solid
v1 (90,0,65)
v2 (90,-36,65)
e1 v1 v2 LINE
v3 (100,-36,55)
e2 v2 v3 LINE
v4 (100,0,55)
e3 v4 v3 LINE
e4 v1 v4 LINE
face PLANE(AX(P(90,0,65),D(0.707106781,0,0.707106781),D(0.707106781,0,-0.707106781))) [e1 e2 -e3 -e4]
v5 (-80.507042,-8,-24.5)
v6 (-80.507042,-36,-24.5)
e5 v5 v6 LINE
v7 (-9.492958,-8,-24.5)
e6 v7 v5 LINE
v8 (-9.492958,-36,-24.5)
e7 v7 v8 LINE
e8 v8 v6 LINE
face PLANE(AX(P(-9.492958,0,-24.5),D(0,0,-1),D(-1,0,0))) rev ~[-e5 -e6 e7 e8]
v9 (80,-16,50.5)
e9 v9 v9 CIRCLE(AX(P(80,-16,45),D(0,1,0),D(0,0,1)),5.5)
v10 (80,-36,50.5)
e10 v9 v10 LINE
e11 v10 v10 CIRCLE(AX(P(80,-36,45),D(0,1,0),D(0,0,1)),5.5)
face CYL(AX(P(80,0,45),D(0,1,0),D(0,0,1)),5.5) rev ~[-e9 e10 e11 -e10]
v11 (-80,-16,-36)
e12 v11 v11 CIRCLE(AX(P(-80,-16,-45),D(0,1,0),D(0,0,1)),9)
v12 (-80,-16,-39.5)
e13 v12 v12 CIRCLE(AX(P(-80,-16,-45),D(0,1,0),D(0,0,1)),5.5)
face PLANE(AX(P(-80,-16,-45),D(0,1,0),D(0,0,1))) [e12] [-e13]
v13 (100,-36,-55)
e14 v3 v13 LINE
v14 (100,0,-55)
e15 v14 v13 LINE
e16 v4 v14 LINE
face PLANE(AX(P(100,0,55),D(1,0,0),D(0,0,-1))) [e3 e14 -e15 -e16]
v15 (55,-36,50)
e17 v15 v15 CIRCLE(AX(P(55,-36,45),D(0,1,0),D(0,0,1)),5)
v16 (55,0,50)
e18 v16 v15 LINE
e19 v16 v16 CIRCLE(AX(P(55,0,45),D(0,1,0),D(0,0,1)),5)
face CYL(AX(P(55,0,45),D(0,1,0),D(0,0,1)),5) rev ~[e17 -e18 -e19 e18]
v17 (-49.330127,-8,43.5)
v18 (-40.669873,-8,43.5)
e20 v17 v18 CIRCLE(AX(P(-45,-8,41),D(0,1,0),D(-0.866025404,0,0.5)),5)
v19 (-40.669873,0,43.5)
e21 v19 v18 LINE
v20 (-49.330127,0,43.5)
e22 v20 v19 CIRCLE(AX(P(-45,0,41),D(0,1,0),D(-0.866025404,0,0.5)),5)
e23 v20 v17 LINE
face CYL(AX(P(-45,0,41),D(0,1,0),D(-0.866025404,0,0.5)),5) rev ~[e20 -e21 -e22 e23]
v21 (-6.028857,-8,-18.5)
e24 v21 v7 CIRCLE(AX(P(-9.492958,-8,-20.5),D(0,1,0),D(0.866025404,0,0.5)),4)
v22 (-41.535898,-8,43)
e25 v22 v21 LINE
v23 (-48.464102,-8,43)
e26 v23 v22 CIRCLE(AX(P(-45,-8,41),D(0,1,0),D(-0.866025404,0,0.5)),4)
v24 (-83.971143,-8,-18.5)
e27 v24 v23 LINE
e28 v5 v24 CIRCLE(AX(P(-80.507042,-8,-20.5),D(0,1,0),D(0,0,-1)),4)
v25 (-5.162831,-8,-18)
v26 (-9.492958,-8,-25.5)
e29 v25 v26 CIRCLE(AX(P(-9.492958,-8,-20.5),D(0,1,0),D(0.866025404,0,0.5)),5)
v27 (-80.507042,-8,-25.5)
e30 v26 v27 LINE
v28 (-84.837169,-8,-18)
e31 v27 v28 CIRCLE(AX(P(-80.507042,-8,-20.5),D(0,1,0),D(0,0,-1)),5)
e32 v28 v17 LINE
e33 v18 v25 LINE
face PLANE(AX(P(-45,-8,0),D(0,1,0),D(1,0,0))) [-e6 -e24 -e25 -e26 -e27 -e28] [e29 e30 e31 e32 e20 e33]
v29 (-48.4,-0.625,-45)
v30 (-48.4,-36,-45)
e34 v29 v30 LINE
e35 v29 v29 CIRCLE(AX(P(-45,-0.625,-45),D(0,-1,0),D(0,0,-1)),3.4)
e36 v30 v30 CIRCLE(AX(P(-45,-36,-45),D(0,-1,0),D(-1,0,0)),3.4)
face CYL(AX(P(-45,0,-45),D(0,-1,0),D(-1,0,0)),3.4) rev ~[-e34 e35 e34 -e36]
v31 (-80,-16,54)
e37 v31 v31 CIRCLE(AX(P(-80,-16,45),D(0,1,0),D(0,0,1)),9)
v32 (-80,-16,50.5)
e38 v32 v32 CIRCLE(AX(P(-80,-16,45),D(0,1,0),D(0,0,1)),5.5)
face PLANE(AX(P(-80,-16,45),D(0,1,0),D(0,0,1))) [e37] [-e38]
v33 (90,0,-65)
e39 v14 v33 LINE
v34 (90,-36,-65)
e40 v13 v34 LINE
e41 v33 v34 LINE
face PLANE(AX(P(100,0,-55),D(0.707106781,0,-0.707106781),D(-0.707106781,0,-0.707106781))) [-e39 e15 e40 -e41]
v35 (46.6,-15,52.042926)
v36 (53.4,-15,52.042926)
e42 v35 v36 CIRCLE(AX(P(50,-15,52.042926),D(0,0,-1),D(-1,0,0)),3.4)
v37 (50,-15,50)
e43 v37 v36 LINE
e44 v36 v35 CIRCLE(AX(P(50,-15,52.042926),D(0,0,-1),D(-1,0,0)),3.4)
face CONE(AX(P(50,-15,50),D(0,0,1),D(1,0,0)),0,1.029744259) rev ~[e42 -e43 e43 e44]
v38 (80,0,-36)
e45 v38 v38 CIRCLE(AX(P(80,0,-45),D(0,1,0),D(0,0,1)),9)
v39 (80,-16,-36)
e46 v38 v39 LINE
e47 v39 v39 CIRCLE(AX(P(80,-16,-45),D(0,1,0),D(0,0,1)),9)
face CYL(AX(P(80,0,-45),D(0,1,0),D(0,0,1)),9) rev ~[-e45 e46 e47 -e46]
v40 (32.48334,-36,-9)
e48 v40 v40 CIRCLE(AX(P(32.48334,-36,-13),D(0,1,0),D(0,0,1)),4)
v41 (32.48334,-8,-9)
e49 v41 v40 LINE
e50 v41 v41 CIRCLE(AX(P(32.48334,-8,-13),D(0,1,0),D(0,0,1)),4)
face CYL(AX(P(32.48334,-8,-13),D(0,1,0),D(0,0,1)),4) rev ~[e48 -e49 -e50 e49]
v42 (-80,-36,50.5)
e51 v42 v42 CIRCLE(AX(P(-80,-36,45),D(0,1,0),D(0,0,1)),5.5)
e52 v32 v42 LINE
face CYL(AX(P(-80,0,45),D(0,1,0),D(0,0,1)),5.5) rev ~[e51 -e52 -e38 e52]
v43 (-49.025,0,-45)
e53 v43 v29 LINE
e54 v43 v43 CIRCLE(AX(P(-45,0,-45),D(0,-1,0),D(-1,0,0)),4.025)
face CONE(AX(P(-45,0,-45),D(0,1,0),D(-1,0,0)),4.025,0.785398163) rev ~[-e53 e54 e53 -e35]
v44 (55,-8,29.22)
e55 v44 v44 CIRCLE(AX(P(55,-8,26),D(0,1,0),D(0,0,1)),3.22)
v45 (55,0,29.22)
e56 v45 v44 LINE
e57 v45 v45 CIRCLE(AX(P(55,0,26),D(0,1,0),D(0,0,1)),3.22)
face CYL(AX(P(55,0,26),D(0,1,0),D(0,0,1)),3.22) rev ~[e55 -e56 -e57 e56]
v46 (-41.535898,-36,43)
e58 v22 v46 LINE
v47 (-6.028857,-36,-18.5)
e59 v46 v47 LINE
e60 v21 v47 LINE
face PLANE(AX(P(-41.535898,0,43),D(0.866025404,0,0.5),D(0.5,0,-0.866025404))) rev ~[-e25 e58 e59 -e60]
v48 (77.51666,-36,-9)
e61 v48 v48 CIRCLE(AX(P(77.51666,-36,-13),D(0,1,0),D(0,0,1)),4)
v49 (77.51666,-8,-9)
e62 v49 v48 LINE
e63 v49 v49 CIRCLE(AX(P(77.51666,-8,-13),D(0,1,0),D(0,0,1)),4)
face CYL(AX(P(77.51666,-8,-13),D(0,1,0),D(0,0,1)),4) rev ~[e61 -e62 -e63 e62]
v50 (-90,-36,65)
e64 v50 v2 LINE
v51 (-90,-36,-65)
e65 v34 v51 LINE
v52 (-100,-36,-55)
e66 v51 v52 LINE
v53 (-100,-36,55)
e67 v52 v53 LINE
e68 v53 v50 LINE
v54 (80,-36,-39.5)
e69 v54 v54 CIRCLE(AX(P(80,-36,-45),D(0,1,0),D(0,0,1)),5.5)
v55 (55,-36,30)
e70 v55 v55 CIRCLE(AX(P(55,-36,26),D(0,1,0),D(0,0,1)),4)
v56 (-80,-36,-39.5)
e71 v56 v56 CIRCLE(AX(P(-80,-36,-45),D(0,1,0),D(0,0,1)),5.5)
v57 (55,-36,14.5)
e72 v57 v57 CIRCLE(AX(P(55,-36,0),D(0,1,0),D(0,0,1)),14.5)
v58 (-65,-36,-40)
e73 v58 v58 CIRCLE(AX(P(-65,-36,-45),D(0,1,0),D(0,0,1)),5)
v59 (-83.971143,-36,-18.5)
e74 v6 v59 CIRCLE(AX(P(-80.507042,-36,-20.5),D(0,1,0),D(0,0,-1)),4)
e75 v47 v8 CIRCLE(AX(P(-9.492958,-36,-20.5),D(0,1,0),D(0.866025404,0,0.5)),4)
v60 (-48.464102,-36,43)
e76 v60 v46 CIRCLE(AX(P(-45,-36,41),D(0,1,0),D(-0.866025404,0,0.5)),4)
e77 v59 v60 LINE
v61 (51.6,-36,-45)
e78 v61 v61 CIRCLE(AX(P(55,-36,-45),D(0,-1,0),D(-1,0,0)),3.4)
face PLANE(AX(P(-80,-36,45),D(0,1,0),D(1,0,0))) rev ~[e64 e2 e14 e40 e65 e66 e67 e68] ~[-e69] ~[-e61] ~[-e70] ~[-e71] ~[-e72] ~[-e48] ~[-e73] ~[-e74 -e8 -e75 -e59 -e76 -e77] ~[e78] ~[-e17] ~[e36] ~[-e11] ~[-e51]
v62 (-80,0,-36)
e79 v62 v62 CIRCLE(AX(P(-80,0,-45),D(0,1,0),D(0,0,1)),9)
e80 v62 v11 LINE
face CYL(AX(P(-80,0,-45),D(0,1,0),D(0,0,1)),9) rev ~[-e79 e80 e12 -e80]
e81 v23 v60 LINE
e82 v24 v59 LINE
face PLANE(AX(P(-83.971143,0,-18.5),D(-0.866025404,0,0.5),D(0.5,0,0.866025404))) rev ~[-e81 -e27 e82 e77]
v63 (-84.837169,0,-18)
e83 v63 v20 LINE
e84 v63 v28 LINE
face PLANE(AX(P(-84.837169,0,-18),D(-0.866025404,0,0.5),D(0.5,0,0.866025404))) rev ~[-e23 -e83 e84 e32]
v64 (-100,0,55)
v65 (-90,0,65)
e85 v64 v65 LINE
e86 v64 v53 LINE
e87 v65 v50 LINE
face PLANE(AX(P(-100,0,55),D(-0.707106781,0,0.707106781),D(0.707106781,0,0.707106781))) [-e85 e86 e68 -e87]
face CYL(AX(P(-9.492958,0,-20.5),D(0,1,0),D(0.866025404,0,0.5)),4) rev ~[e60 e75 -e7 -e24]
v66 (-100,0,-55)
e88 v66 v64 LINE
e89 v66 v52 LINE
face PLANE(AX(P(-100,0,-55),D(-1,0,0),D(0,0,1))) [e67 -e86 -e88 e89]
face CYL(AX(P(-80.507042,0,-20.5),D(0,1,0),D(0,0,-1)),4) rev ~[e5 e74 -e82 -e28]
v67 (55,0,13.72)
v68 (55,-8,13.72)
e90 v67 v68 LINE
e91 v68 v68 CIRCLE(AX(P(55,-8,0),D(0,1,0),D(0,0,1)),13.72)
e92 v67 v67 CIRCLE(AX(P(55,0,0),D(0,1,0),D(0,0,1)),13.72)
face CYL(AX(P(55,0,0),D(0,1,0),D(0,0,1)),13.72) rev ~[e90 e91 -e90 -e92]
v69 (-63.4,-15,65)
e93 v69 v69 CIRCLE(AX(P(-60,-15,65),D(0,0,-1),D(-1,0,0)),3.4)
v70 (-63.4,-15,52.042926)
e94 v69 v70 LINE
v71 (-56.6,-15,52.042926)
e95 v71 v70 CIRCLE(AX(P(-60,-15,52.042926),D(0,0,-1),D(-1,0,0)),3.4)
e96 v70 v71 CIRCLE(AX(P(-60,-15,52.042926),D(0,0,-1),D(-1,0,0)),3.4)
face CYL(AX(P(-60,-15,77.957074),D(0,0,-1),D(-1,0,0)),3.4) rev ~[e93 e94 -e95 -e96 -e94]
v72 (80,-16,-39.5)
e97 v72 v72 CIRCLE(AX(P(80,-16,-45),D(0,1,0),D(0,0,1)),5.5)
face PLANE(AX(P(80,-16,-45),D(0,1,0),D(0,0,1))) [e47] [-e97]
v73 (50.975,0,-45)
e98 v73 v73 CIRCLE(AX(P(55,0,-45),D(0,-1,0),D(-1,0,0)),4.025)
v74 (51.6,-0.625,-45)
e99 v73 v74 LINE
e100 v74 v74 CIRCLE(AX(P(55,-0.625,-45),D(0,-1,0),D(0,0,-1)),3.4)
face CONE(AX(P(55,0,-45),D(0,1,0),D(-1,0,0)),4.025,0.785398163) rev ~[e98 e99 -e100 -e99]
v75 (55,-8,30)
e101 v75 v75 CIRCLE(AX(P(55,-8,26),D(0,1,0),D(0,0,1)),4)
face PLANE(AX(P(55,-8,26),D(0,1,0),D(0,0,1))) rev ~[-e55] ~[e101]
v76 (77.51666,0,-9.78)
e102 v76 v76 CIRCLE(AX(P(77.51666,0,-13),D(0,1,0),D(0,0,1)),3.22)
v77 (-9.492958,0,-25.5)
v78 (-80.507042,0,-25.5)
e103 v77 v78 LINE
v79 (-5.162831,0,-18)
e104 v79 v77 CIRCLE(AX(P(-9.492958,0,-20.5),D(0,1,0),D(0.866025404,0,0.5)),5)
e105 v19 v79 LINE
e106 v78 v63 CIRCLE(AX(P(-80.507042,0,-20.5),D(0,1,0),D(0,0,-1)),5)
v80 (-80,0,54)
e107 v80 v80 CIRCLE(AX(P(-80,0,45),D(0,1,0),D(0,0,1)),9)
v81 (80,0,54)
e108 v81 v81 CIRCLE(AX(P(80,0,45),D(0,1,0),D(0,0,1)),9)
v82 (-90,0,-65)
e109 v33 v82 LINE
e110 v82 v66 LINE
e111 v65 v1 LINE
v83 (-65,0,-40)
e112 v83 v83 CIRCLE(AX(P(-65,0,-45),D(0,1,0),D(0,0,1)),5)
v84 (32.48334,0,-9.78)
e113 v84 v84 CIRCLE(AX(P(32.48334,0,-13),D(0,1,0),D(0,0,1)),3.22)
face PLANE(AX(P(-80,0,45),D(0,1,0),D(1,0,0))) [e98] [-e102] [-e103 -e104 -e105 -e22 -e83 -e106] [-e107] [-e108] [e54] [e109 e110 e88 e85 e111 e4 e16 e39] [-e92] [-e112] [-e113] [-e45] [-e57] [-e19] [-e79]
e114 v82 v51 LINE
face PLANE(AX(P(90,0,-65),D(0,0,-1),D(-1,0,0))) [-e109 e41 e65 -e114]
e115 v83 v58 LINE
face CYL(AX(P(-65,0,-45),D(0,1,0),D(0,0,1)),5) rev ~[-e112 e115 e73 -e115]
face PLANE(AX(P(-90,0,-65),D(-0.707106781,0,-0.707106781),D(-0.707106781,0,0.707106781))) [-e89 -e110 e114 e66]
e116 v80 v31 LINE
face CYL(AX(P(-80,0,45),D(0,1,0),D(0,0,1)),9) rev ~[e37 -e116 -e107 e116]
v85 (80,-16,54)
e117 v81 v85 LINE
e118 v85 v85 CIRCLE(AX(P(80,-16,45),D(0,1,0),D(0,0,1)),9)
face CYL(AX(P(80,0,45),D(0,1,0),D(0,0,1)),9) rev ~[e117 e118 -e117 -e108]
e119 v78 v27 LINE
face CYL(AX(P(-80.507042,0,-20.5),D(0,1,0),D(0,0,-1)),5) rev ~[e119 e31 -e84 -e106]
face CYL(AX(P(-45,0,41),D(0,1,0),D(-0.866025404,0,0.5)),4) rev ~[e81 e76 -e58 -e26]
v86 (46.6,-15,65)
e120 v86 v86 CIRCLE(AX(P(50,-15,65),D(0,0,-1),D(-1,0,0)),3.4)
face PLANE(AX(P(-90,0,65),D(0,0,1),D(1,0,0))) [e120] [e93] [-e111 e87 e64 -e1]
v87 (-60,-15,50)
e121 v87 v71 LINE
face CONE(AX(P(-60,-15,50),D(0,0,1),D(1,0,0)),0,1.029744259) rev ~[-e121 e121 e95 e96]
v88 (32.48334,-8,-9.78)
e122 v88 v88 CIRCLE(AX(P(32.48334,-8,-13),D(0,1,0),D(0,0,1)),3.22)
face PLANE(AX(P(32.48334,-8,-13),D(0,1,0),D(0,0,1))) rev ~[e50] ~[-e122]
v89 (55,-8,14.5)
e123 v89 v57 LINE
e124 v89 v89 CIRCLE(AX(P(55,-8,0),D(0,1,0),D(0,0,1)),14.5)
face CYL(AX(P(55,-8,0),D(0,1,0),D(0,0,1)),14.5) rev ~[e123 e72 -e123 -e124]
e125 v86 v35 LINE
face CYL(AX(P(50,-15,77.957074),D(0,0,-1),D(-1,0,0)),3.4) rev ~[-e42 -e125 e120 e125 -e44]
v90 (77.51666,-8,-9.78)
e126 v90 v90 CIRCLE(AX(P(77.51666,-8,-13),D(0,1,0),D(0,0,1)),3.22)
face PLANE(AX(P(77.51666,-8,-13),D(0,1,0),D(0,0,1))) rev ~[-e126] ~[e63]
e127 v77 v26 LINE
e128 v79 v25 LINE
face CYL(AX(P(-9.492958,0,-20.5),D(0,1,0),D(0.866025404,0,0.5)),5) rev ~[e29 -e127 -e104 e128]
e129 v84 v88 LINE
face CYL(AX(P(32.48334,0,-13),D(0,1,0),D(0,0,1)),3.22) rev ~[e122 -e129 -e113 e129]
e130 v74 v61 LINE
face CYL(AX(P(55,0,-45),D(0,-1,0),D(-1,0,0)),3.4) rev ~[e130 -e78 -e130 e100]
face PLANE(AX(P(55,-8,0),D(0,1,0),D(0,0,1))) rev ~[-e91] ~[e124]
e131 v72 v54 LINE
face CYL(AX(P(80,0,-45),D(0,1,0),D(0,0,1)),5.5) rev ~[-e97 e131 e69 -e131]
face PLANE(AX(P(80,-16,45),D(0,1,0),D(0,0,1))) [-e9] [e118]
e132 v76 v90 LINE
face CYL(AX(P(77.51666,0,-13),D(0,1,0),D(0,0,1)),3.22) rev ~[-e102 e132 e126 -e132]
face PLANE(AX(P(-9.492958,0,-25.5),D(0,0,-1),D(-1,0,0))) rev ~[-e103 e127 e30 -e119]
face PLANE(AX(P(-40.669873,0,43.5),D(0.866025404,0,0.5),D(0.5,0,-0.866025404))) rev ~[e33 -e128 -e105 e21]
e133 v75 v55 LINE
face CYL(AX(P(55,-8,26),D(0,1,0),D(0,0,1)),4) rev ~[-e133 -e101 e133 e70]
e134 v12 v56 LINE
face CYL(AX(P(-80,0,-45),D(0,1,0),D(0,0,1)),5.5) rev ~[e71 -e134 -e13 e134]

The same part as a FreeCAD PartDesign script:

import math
import FreeCAD as App
import Part
import Sketcher
from FreeCAD import Vector
Q = App.Units.Quantity

doc = App.newDocument("Part")
body = doc.addObject("PartDesign::Body", "Body")

sketch1 = body.newObject("Sketcher::SketchObject", "Sketch")
sketch1.AttachmentSupport = (doc.getObject("XZ_Plane"), [""])
sketch1.MapMode = "FlatFace"
sketch1.addGeometry(Part.LineSegment(Vector(100, 55, 0), Vector(100, -55, 0)), False)
sketch1.addGeometry(Part.LineSegment(Vector(100, -55, 0), Vector(90, -65, 0)), False)
sketch1.addGeometry(Part.LineSegment(Vector(90, -65, 0), Vector(-90, -65, 0)), False)
sketch1.addGeometry(Part.LineSegment(Vector(-90, -65, 0), Vector(-100, -55, 0)), False)
sketch1.addGeometry(Part.LineSegment(Vector(-100, -55, 0), Vector(-100, 55, 0)), False)
sketch1.addGeometry(Part.LineSegment(Vector(-100, 55, 0), Vector(-90, 65, 0)), False)
sketch1.addGeometry(Part.LineSegment(Vector(-90, 65, 0), Vector(90, 65, 0)), False)
sketch1.addGeometry(Part.LineSegment(Vector(90, 65, 0), Vector(100, 55, 0)), False)
sketch1.addGeometry(Part.Circle(Vector(55, 45, 0), Vector(0, 0, 1), 5), False)
sketch1.addGeometry(Part.Circle(Vector(-65, -45, 0), Vector(0, 0, 1), 5), False)
sketch1.addGeometry(Part.Circle(Vector(-80, 45, 0), Vector(0, 0, 1), 5.5), False)
sketch1.addGeometry(Part.ArcOfCircle(Part.Circle(Vector(-9.5, -20.5, 0), Vector(0, 0, 1), 4), math.radians(-90), math.radians(30)), False)
sketch1.addGeometry(Part.LineSegment(Vector(-6, -18.5, 0), Vector(-41.5, 43, 0)), False)
sketch1.addGeometry(Part.ArcOfCircle(Part.Circle(Vector(-45, 41, 0), Vector(0, 0, 1), 4), math.radians(30), math.radians(150)), False)
sketch1.addGeometry(Part.LineSegment(Vector(-48.5, 43, 0), Vector(-84, -18.5, 0)), False)
sketch1.addGeometry(Part.ArcOfCircle(Part.Circle(Vector(-80.5, -20.5, 0), Vector(0, 0, 1), 4), math.radians(150), math.radians(270)), False)
sketch1.addGeometry(Part.LineSegment(Vector(-80.5, -24.5, 0), Vector(-9.5, -24.5, 0)), False)
sketch1.addGeometry(Part.Circle(Vector(80, 45, 0), Vector(0, 0, 1), 5.5), False)
sketch1.addGeometry(Part.Circle(Vector(55, 26, 0), Vector(0, 0, 1), 3.2), False)
sketch1.addGeometry(Part.Circle(Vector(-80, -45, 0), Vector(0, 0, 1), 5.5), False)
sketch1.addGeometry(Part.Circle(Vector(32.5, -13, 0), Vector(0, 0, 1), 3.2), False)
sketch1.addGeometry(Part.Circle(Vector(55, 0, 0), Vector(0, 0, 1), 13.7), False)
sketch1.addGeometry(Part.Circle(Vector(77.5, -13, 0), Vector(0, 0, 1), 3.2), False)
sketch1.addGeometry(Part.Circle(Vector(80, -45, 0), Vector(0, 0, 1), 5.5), False)
sketch1.addConstraint(Sketcher.Constraint("Coincident", 0, 2, 1, 1))
sketch1.addConstraint(Sketcher.Constraint("Coincident", 1, 2, 2, 1))
sketch1.addConstraint(Sketcher.Constraint("Coincident", 2, 2, 3, 1))
sketch1.addConstraint(Sketcher.Constraint("Coincident", 3, 2, 4, 1))
sketch1.addConstraint(Sketcher.Constraint("Coincident", 4, 2, 5, 1))
sketch1.addConstraint(Sketcher.Constraint("Coincident", 5, 2, 6, 1))
sketch1.addConstraint(Sketcher.Constraint("Coincident", 6, 2, 7, 1))
sketch1.addConstraint(Sketcher.Constraint("Coincident", 7, 2, 0, 1))
sketch1.addConstraint(Sketcher.Constraint("Tangent", 11, 2, 12, 1))
sketch1.addConstraint(Sketcher.Constraint("Tangent", 12, 2, 13, 1))
sketch1.addConstraint(Sketcher.Constraint("Tangent", 13, 2, 14, 1))
sketch1.addConstraint(Sketcher.Constraint("Tangent", 14, 2, 15, 1))
sketch1.addConstraint(Sketcher.Constraint("Tangent", 15, 2, 16, 1))
sketch1.addConstraint(Sketcher.Constraint("Tangent", 16, 2, 11, 1))
sketch1.addConstraint(Sketcher.Constraint("Vertical", 0))
sketch1.addConstraint(Sketcher.Constraint("Horizontal", 2))
sketch1.addConstraint(Sketcher.Constraint("Vertical", 4))
sketch1.addConstraint(Sketcher.Constraint("Horizontal", 6))
sketch1.addConstraint(Sketcher.Constraint("Horizontal", 16))
sketch1.addConstraint(Sketcher.Constraint("Equal", 8, 9))
sketch1.addConstraint(Sketcher.Constraint("Equal", 11, 13))
sketch1.addConstraint(Sketcher.Constraint("Equal", 13, 15))
sketch1.addConstraint(Sketcher.Constraint("Equal", 10, 17))
sketch1.addConstraint(Sketcher.Constraint("Equal", 17, 19))
sketch1.addConstraint(Sketcher.Constraint("Equal", 18, 20))
sketch1.addConstraint(Sketcher.Constraint("Equal", 20, 22))
sketch1.addConstraint(Sketcher.Constraint("Equal", 19, 23))
sketch1.addConstraint(Sketcher.Constraint("Symmetric", 17, 3, 19, 3, -1, 1))
sketch1.addConstraint(Sketcher.Constraint("Symmetric", 10, 3, 23, 3, -1, 1))
sketch1.addConstraint(Sketcher.Constraint("Symmetric", 0, 2, 4, 2, -1, 1))
sketch1.addConstraint(Sketcher.Constraint("Symmetric", 1, 2, 5, 2, -1, 1))
sketch1.addConstraint(Sketcher.Constraint("Symmetric", 10, 3, 17, 3, -2))
sketch1.addConstraint(Sketcher.Constraint("PointOnObject", 21, 3, -1))
sketch1.addConstraint(Sketcher.Constraint("Perpendicular", 1, 3))
sketch1.addConstraint(Sketcher.Constraint("Perpendicular", 5, 7))
sketch1.addConstraint(Sketcher.Constraint("Horizontal", 8, 3, 10, 3))
sketch1.addConstraint(Sketcher.Constraint("Horizontal", 9, 3, 19, 3))
sketch1.addConstraint(Sketcher.Constraint("Horizontal", 20, 3, 22, 3))
sketch1.addConstraint(Sketcher.Constraint("Horizontal", 0, 2, 3, 2))
sketch1.addConstraint(Sketcher.Constraint("Horizontal", 4, 2, 7, 2))
sketch1.addConstraint(Sketcher.Constraint("Horizontal", 12, 2, 13, 2))
sketch1.addConstraint(Sketcher.Constraint("Vertical", 8, 3, 18, 3))
sketch1.addConstraint(Sketcher.Constraint("Vertical", 18, 3, 21, 3))
sketch1.addConstraint(Sketcher.Constraint("Vertical", 2, 2, 5, 2))
sketch1.addConstraint(Sketcher.Constraint("Diameter", 8, Q("10 mm")))
sketch1.addConstraint(Sketcher.Constraint("Diameter", 10, Q("11 mm")))
sketch1.addConstraint(Sketcher.Constraint("Radius", 11, Q("4 mm")))
sketch1.addConstraint(Sketcher.Constraint("Diameter", 18, Q("6.44 mm")))
sketch1.addConstraint(Sketcher.Constraint("Diameter", 21, Q("27.44 mm")))
sketch1.addConstraint(Sketcher.Constraint("DistanceX", 2, 2, 2, 1, Q("180 mm")))
sketch1.addConstraint(Sketcher.Constraint("DistanceY", 0, 2, 0, 1, Q("110 mm")))
sketch1.addConstraint(Sketcher.Constraint("Angle", 12, Q("120 deg")))
sketch1.addConstraint(Sketcher.Constraint("DistanceX", -1, 1, 8, 3, Q("55 mm")))
sketch1.addConstraint(Sketcher.Constraint("DistanceY", -1, 1, 8, 3, Q("45 mm")))
sketch1.addConstraint(Sketcher.Constraint("DistanceX", 9, 3, -1, 1, Q("65 mm")))
sketch1.addConstraint(Sketcher.Constraint("DistanceX", 10, 3, -1, 1, Q("80 mm")))
sketch1.addConstraint(Sketcher.Constraint("DistanceX", 13, 3, -1, 1, Q("45 mm")))
sketch1.addConstraint(Sketcher.Constraint("DistanceY", -1, 1, 13, 3, Q("41 mm")))
sketch1.addConstraint(Sketcher.Constraint("DistanceY", -1, 1, 18, 3, Q("26 mm")))
sketch1.addConstraint(Sketcher.Constraint("DistanceY", 20, 3, -1, 1, Q("13 mm")))
sketch1.addConstraint(Sketcher.Constraint("DistanceX", -1, 1, 0, 2, Q("100 mm")))
sketch1.addConstraint(Sketcher.Constraint("DistanceY", 11, 3, -1, 1, Q("20.5 mm")))
sketch1.addConstraint(Sketcher.Constraint("DistanceX", -1, 1, 20, 3, Q("32.48334 mm")))
sketch1.addConstraint(Sketcher.Constraint("DistanceX", -1, 1, 22, 3, Q("77.51666 mm")))
pad1 = body.newObject("PartDesign::Pad", "Pad")
pad1.Profile = sketch1
pad1.Length = 36

sketch2 = body.newObject("Sketcher::SketchObject", "Sketch001")
sketch2.AttachmentSupport = (doc.getObject("XZ_Plane"), [""])
sketch2.MapMode = "FlatFace"
sketch2.addGeometry(Part.Circle(Vector(-45, -45, 0), Vector(0, 0, 1), 3.4), False)
sketch2.addGeometry(Part.Circle(Vector(55, -45, 0), Vector(0, 0, 1), 3.4), False)
sketch2.addConstraint(Sketcher.Constraint("Equal", 0, 1))
sketch2.addConstraint(Sketcher.Constraint("Horizontal", 0, 3, 1, 3))
sketch2.addConstraint(Sketcher.Constraint("Diameter", 0, Q("6.8 mm")))
sketch2.addConstraint(Sketcher.Constraint("DistanceX", 0, 3, -1, 1, Q("45 mm")))
sketch2.addConstraint(Sketcher.Constraint("DistanceY", 0, 3, -1, 1, Q("45 mm")))
sketch2.addConstraint(Sketcher.Constraint("DistanceX", -1, 1, 1, 3, Q("55 mm")))
doc.recompute()
hole = body.newObject("PartDesign::Hole", "Hole")
hole.Profile = sketch2
hole.ThreadType = "None"
hole.Diameter = 6.8
hole.DepthType = "ThroughAll"
hole.HoleCutType = "Countersink"
hole.HoleCutDiameter = 8.05
hole.HoleCutCountersinkAngle = 90
hole.Reversed = True

sketch3 = body.newObject("Sketcher::SketchObject", "Sketch002")
sketch3.AttachmentSupport = (doc.getObject("XZ_Plane"), [""])
sketch3.MapMode = "FlatFace"
sketch3.addGeometry(Part.LineSegment(Vector(-9.5, -25.5, 0), Vector(-80.5, -25.5, 0)), False)
sketch3.addGeometry(Part.ArcOfCircle(Part.Circle(Vector(-80.5, -20.5, 0), Vector(0, 0, 1), 5), math.radians(150), math.radians(270)), False)
sketch3.addGeometry(Part.LineSegment(Vector(-84.8, -18, 0), Vector(-49.3, 43.5, 0)), False)
sketch3.addGeometry(Part.ArcOfCircle(Part.Circle(Vector(-45, 41, 0), Vector(0, 0, 1), 5), math.radians(30), math.radians(150)), False)
sketch3.addGeometry(Part.LineSegment(Vector(-40.7, 43.5, 0), Vector(-5.2, -18, 0)), False)
sketch3.addGeometry(Part.ArcOfCircle(Part.Circle(Vector(-9.5, -20.5, 0), Vector(0, 0, 1), 5), math.radians(-90), math.radians(30)), False)
sketch3.addGeometry(Part.ArcOfCircle(Part.Circle(Vector(-9.5, -20.5, 0), Vector(0, 0, 1), 4), math.radians(-90), math.radians(30)), False)
sketch3.addGeometry(Part.LineSegment(Vector(-6, -18.5, 0), Vector(-41.5, 43, 0)), False)
sketch3.addGeometry(Part.ArcOfCircle(Part.Circle(Vector(-45, 41, 0), Vector(0, 0, 1), 4), math.radians(30), math.radians(150)), False)
sketch3.addGeometry(Part.LineSegment(Vector(-48.5, 43, 0), Vector(-84, -18.5, 0)), False)
sketch3.addGeometry(Part.ArcOfCircle(Part.Circle(Vector(-80.5, -20.5, 0), Vector(0, 0, 1), 4), math.radians(150), math.radians(270)), False)
sketch3.addGeometry(Part.LineSegment(Vector(-80.5, -24.5, 0), Vector(-9.5, -24.5, 0)), False)
sketch3.addConstraint(Sketcher.Constraint("Tangent", 0, 2, 1, 2))
sketch3.addConstraint(Sketcher.Constraint("Tangent", 1, 1, 2, 1))
sketch3.addConstraint(Sketcher.Constraint("Tangent", 2, 2, 3, 2))
sketch3.addConstraint(Sketcher.Constraint("Tangent", 3, 1, 4, 1))
sketch3.addConstraint(Sketcher.Constraint("Tangent", 4, 2, 5, 2))
sketch3.addConstraint(Sketcher.Constraint("Tangent", 5, 1, 0, 1))
sketch3.addConstraint(Sketcher.Constraint("Tangent", 6, 2, 7, 1))
sketch3.addConstraint(Sketcher.Constraint("Tangent", 7, 2, 8, 1))
sketch3.addConstraint(Sketcher.Constraint("Tangent", 8, 2, 9, 1))
sketch3.addConstraint(Sketcher.Constraint("Tangent", 9, 2, 10, 1))
sketch3.addConstraint(Sketcher.Constraint("Tangent", 10, 2, 11, 1))
sketch3.addConstraint(Sketcher.Constraint("Tangent", 11, 2, 6, 1))
sketch3.addConstraint(Sketcher.Constraint("Horizontal", 0))
sketch3.addConstraint(Sketcher.Constraint("Horizontal", 11))
sketch3.addConstraint(Sketcher.Constraint("Coincident", 6, 3, 5, 3))
sketch3.addConstraint(Sketcher.Constraint("Coincident", 8, 3, 3, 3))
sketch3.addConstraint(Sketcher.Constraint("Coincident", 10, 3, 1, 3))
sketch3.addConstraint(Sketcher.Constraint("Equal", 1, 3))
sketch3.addConstraint(Sketcher.Constraint("Equal", 3, 5))
sketch3.addConstraint(Sketcher.Constraint("Equal", 6, 8))
sketch3.addConstraint(Sketcher.Constraint("Horizontal", 2, 2, 3, 1))
sketch3.addConstraint(Sketcher.Constraint("Radius", 1, Q("5 mm")))
sketch3.addConstraint(Sketcher.Constraint("Radius", 6, Q("4 mm")))
sketch3.addConstraint(Sketcher.Constraint("Angle", 2, Q("60 deg")))
sketch3.addConstraint(Sketcher.Constraint("DistanceX", 3, 3, -1, 1, Q("45 mm")))
sketch3.addConstraint(Sketcher.Constraint("DistanceY", -1, 1, 3, 3, Q("41 mm")))
sketch3.addConstraint(Sketcher.Constraint("DistanceY", 1, 1, -1, 1, Q("18 mm")))
pocket1 = body.newObject("PartDesign::Pocket", "Pocket")
pocket1.Profile = sketch3
pocket1.Length = 8
pocket1.Reversed = True

sketch4 = body.newObject("Sketcher::SketchObject", "Sketch003")
sketch4.AttachmentSupport = (doc.getObject("XZ_Plane"), [""])
sketch4.MapMode = "FlatFace"
sketch4.addGeometry(Part.Circle(Vector(-80, -45, 0), Vector(0, 0, 1), 9), False)
sketch4.addGeometry(Part.Circle(Vector(-80, -45, 0), Vector(0, 0, 1), 6), False)
sketch4.addGeometry(Part.Circle(Vector(80, -45, 0), Vector(0, 0, 1), 9), False)
sketch4.addGeometry(Part.Circle(Vector(80, -45, 0), Vector(0, 0, 1), 6), False)
sketch4.addGeometry(Part.Circle(Vector(80, 45, 0), Vector(0, 0, 1), 9), False)
sketch4.addGeometry(Part.Circle(Vector(80, 45, 0), Vector(0, 0, 1), 6), False)
sketch4.addGeometry(Part.Circle(Vector(-80, 45, 0), Vector(0, 0, 1), 9), False)
sketch4.addGeometry(Part.Circle(Vector(-80, 45, 0), Vector(0, 0, 1), 6), False)
sketch4.addConstraint(Sketcher.Constraint("Coincident", 1, 3, 0, 3))
sketch4.addConstraint(Sketcher.Constraint("Coincident", 3, 3, 2, 3))
sketch4.addConstraint(Sketcher.Constraint("Coincident", 5, 3, 4, 3))
sketch4.addConstraint(Sketcher.Constraint("Coincident", 7, 3, 6, 3))
sketch4.addConstraint(Sketcher.Constraint("Equal", 0, 2))
sketch4.addConstraint(Sketcher.Constraint("Equal", 1, 3))
sketch4.addConstraint(Sketcher.Constraint("Equal", 2, 4))
sketch4.addConstraint(Sketcher.Constraint("Equal", 3, 5))
sketch4.addConstraint(Sketcher.Constraint("Equal", 4, 6))
sketch4.addConstraint(Sketcher.Constraint("Equal", 5, 7))
sketch4.addConstraint(Sketcher.Constraint("Symmetric", 0, 3, 4, 3, -1, 1))
sketch4.addConstraint(Sketcher.Constraint("Symmetric", 2, 3, 6, 3, -1, 1))
sketch4.addConstraint(Sketcher.Constraint("Symmetric", 0, 3, 2, 3, -2))
sketch4.addConstraint(Sketcher.Constraint("Diameter", 0, Q("18 mm")))
sketch4.addConstraint(Sketcher.Constraint("Diameter", 1, Q("11 mm")))
sketch4.addConstraint(Sketcher.Constraint("DistanceX", 0, 3, -1, 1, Q("80 mm")))
sketch4.addConstraint(Sketcher.Constraint("DistanceY", 0, 3, -1, 1, Q("45 mm")))
pocket2 = body.newObject("PartDesign::Pocket", "Pocket001")
pocket2.Profile = sketch4
pocket2.Length = 16
pocket2.Reversed = True

sketch5 = body.newObject("Sketcher::SketchObject", "Sketch004")
sketch5.AttachmentSupport = (doc.getObject("XZ_Plane"), [""])
sketch5.MapMode = "FlatFace"
sketch5.AttachmentOffset = App.Placement(Vector(0, 0, 8), App.Rotation())
sketch5.addGeometry(Part.Circle(Vector(77.5, -13, 0), Vector(0, 0, 1), 4), False)
sketch5.addGeometry(Part.Circle(Vector(77.5, -13, 0), Vector(0, 0, 1), 3.2), False)
sketch5.addGeometry(Part.Circle(Vector(32.5, -13, 0), Vector(0, 0, 1), 4), False)
sketch5.addGeometry(Part.Circle(Vector(32.5, -13, 0), Vector(0, 0, 1), 3.2), False)
sketch5.addGeometry(Part.Circle(Vector(55, 26, 0), Vector(0, 0, 1), 4), False)
sketch5.addGeometry(Part.Circle(Vector(55, 26, 0), Vector(0, 0, 1), 3.2), False)
sketch5.addGeometry(Part.Circle(Vector(55, 0, 0), Vector(0, 0, 1), 14.5), False)
sketch5.addConstraint(Sketcher.Constraint("Coincident", 1, 3, 0, 3))
sketch5.addConstraint(Sketcher.Constraint("Coincident", 3, 3, 2, 3))
sketch5.addConstraint(Sketcher.Constraint("Coincident", 5, 3, 4, 3))
sketch5.addConstraint(Sketcher.Constraint("Equal", 0, 2))
sketch5.addConstraint(Sketcher.Constraint("Equal", 1, 3))
sketch5.addConstraint(Sketcher.Constraint("Equal", 2, 4))
sketch5.addConstraint(Sketcher.Constraint("Equal", 3, 5))
sketch5.addConstraint(Sketcher.Constraint("PointOnObject", 6, 3, -1))
sketch5.addConstraint(Sketcher.Constraint("Horizontal", 1, 3, 2, 3))
sketch5.addConstraint(Sketcher.Constraint("Vertical", 5, 3, 6, 3))
sketch5.addConstraint(Sketcher.Constraint("Diameter", 0, Q("8 mm")))
sketch5.addConstraint(Sketcher.Constraint("Diameter", 6, Q("29 mm")))
sketch5.addConstraint(Sketcher.Constraint("Diameter", 1, Q("6.44 mm")))
sketch5.addConstraint(Sketcher.Constraint("DistanceY", 0, 3, -1, 1, Q("13 mm")))
sketch5.addConstraint(Sketcher.Constraint("DistanceX", -1, 1, 4, 3, Q("55 mm")))
sketch5.addConstraint(Sketcher.Constraint("DistanceY", -1, 1, 4, 3, Q("26 mm")))
sketch5.addConstraint(Sketcher.Constraint("DistanceX", -1, 1, 0, 3, Q("77.51666 mm")))
sketch5.addConstraint(Sketcher.Constraint("DistanceX", -1, 1, 2, 3, Q("32.48334 mm")))
pocket3 = body.newObject("PartDesign::Pocket", "Pocket002")
pocket3.Profile = sketch5
pocket3.Length = 117.583305
pocket3.Reversed = True

sketch6 = body.newObject("Sketcher::SketchObject", "Sketch005")
sketch6.AttachmentSupport = (doc.getObject("XY_Plane"), [""])
sketch6.MapMode = "FlatFace"
sketch6.AttachmentOffset = App.Placement(Vector(0, 0, 65), App.Rotation())
sketch6.addGeometry(Part.Circle(Vector(-60, -15, 0), Vector(0, 0, 1), 3.4), False)
sketch6.addGeometry(Part.Circle(Vector(50, -15, 0), Vector(0, 0, 1), 3.4), False)
sketch6.addConstraint(Sketcher.Constraint("Equal", 0, 1))
sketch6.addConstraint(Sketcher.Constraint("Horizontal", 0, 3, 1, 3))
sketch6.addConstraint(Sketcher.Constraint("Diameter", 0, Q("6.8 mm")))
sketch6.addConstraint(Sketcher.Constraint("DistanceX", 0, 3, -1, 1, Q("60 mm")))
sketch6.addConstraint(Sketcher.Constraint("DistanceY", 0, 3, -1, 1, Q("15 mm")))
sketch6.addConstraint(Sketcher.Constraint("DistanceX", -1, 1, 1, 3, Q("50 mm")))
doc.recompute()
hole2 = body.newObject("PartDesign::Hole", "Hole001")
hole2.Profile = sketch6
hole2.ThreadType = "None"
hole2.Diameter = 6.8
hole2.DepthType = "Dimension"
hole2.Depth = 12.957074
hole2.DrillPoint = "Angled"
hole2.DrillPointAngle = 118

doc.recompute()
